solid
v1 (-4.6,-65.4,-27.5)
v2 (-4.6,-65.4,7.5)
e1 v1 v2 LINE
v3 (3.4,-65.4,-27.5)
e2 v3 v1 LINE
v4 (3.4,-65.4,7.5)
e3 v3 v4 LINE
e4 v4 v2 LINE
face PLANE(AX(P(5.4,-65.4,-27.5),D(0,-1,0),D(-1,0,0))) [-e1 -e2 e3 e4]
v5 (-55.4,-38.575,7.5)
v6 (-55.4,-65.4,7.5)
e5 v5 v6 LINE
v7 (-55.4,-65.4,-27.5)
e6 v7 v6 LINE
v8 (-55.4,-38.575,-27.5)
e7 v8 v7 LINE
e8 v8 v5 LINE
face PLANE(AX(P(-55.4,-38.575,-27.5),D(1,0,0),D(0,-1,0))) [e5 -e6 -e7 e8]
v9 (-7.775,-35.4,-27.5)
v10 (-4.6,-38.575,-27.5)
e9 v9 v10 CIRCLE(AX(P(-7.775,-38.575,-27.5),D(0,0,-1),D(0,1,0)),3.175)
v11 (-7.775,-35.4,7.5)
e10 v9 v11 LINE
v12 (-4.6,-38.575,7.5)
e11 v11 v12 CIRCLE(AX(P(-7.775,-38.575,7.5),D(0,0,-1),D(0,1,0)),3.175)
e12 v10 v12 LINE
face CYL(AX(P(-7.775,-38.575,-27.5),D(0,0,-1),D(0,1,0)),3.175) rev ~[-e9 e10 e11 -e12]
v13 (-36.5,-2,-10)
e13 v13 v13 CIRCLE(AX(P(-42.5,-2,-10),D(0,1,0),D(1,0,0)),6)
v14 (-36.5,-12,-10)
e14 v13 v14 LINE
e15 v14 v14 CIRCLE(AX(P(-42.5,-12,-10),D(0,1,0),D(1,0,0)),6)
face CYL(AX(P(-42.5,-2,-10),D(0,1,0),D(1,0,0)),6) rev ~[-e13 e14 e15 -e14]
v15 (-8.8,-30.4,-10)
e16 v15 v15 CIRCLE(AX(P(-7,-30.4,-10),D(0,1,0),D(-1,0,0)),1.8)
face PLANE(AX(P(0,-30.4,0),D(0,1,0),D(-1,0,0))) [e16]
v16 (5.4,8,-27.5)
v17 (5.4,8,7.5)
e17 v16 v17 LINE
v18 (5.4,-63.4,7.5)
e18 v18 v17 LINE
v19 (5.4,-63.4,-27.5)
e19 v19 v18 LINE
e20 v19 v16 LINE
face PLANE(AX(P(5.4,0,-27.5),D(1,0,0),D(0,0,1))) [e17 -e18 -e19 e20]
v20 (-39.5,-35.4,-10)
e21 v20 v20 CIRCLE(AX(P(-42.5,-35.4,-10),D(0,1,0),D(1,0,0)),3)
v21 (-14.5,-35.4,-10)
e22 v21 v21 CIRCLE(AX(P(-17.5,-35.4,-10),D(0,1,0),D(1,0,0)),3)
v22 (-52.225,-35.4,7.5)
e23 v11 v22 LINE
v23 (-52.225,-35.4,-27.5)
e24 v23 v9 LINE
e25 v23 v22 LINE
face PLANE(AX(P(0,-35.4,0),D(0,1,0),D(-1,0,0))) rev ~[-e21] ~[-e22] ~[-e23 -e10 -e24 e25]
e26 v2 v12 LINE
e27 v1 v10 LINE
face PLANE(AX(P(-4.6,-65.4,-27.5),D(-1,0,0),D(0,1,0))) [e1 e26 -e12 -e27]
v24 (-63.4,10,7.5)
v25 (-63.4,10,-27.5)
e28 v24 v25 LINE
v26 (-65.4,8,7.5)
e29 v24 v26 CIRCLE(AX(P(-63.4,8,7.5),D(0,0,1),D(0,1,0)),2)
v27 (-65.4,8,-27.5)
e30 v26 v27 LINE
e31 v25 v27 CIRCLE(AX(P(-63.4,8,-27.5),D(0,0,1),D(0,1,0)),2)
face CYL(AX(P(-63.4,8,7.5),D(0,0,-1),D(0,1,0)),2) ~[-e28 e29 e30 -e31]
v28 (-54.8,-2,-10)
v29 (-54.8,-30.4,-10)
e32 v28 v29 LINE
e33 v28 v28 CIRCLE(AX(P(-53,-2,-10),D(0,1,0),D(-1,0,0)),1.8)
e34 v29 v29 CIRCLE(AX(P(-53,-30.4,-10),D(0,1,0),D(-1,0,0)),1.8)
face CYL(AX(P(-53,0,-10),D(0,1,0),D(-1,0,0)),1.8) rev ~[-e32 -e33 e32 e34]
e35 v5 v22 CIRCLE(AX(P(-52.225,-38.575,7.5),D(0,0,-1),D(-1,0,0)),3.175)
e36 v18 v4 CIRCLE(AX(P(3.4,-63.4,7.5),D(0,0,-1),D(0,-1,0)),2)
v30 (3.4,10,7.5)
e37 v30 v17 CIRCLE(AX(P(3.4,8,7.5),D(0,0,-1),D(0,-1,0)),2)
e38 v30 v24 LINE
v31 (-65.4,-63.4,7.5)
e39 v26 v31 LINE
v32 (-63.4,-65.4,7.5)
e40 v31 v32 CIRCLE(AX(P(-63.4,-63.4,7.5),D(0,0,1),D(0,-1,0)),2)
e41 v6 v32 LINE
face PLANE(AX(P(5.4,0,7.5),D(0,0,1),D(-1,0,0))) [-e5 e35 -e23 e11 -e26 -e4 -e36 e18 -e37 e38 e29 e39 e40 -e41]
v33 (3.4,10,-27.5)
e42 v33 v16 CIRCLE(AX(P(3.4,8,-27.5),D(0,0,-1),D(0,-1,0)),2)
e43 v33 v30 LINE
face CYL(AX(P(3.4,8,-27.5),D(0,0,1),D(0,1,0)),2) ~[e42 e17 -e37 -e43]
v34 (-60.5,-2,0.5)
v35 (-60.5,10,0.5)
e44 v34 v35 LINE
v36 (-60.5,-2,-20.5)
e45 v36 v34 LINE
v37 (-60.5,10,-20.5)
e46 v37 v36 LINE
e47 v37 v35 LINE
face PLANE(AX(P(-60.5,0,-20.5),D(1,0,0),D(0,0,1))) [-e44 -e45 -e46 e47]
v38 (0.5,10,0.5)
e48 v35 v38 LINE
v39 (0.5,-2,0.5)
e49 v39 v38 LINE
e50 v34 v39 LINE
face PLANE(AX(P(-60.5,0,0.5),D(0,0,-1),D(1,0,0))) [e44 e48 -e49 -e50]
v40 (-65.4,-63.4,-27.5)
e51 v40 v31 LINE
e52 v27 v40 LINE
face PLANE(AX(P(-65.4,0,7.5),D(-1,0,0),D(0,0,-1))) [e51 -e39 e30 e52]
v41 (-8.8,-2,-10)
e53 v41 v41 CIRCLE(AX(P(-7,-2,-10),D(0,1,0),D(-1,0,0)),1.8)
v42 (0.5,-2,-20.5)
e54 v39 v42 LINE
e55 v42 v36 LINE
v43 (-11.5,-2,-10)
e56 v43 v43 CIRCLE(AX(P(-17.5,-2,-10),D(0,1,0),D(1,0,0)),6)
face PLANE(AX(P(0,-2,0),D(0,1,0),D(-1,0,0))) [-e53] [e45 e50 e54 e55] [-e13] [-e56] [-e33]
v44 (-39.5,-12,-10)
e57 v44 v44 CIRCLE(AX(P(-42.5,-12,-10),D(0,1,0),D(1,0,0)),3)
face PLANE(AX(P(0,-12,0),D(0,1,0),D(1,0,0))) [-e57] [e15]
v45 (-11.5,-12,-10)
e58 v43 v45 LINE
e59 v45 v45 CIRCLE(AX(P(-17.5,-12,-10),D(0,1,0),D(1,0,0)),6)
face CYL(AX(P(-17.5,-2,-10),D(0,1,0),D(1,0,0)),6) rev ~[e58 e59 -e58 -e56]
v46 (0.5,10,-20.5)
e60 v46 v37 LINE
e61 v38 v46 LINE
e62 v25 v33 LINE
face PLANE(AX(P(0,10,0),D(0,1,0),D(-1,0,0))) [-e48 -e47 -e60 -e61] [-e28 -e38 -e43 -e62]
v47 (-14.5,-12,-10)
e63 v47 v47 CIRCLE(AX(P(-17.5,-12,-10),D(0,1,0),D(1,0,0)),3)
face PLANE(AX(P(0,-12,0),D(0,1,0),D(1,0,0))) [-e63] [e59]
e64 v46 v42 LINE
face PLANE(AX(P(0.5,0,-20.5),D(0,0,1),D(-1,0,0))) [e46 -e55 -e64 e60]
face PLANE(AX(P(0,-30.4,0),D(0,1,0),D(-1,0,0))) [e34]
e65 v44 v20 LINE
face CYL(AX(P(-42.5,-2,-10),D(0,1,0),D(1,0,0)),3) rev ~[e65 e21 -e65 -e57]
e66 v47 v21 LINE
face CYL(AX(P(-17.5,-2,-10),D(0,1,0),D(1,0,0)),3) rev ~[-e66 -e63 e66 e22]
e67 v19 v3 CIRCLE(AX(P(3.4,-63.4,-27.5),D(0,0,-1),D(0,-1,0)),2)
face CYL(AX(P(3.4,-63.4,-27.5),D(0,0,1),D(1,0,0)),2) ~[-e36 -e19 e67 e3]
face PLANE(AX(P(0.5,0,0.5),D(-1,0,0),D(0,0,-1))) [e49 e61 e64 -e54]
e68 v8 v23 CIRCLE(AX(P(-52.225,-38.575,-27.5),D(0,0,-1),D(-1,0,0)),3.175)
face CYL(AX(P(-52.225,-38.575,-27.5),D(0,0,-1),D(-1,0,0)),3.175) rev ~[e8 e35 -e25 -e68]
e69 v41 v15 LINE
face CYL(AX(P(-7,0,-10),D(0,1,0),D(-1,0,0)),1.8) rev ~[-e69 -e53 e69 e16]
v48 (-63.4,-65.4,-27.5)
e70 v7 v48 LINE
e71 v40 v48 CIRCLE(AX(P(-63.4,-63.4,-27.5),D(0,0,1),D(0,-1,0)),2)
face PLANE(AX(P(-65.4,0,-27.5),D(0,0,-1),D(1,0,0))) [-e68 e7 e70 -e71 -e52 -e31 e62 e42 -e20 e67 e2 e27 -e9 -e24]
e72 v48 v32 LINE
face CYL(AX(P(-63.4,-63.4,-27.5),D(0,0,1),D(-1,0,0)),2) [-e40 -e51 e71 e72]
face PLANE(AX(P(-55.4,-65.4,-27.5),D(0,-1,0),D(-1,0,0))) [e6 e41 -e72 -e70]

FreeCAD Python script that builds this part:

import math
import FreeCAD as App
import Part
import Sketcher
from FreeCAD import Vector


def edges_at(feature, points):
    """Names of the edges that pass closest to the given points."""
    edges = feature.Shape.Edges
    near = lambda p: min(range(len(edges)), key=lambda i: edges[i].distToShape(Part.Vertex(*p))[0])
    return sorted({f"Edge{near(p) + 1}" for p in points})


def add_polygon(sketch, points):
    """Adds a closed chain of lines whose ends are joined by coincident constraints."""
    first, n = sketch.GeometryCount, len(points)
    for a, b in zip(points, points[1:] + points[:1]):
        sketch.addGeometry(Part.LineSegment(App.Vector(*a, 0), App.Vector(*b, 0)), False)
    for i in range(n):
        sketch.addConstraint(Sketcher.Constraint("Coincident", first + i, 2, first + (i + 1) % n, 1))

doc = App.newDocument("Part")
body = doc.addObject("PartDesign::Body", "Body")

sketch1 = body.newObject("Sketcher::SketchObject", "Sketch")
sketch1.AttachmentSupport = (doc.getObject("XZ_Plane"), [""])
sketch1.MapMode = "FlatFace"
add_polygon(sketch1, [(-65.4, 7.5), (5.4, 7.5), (5.4, -27.5), (-65.4, -27.5)])
sketch1.addConstraint([
    Sketcher.Constraint("Horizontal", 0),
    Sketcher.Constraint("Vertical", 1),
    Sketcher.Constraint("Horizontal", 2),
    Sketcher.Constraint("Vertical", 3),
    Sketcher.Constraint("DistanceY", 1, 2, 1, 1, 35.0),
    Sketcher.Constraint("DistanceX", 0, 1, 0, 2, 70.8),
    Sketcher.Constraint("DistanceX", -1, 1, 0, 2, 5.4),
    Sketcher.Constraint("DistanceY", -1, 1, 0, 2, 7.5),
])
pad1 = body.newObject("PartDesign::Pad", "Pad")
pad1.Profile = sketch1
pad1.Type = "TwoLengths"
pad1.Length = 10
pad1.Length2 = 35.4
pad1.Reversed = True

sketch2 = body.newObject("Sketcher::SketchObject", "Sketch001")
sketch2.AttachmentSupport = (doc.getObject("XZ_Plane"), [""])
sketch2.MapMode = "FlatFace"
add_polygon(sketch2, [(-60.5, -20.5), (-60.5, 0.5), (0.5, 0.5), (0.5, -20.5)])
sketch2.addGeometry(Part.Circle(Vector(-7, -10, 0), Vector(0, 0, 1), 1.8), False)
sketch2.addGeometry(Part.Circle(Vector(-53, -10, 0), Vector(0, 0, 1), 1.8), False)
sketch2.addConstraint([
    Sketcher.Constraint("Vertical", 0),
    Sketcher.Constraint("Horizontal", 1),
    Sketcher.Constraint("Vertical", 2),
    Sketcher.Constraint("Horizontal", 3),
    Sketcher.Constraint("Equal", 4, 5),
    Sketcher.Constraint("Horizontal", 4, 3, 5, 3),
    Sketcher.Constraint("Diameter", 4, 3.6),
    Sketcher.Constraint("DistanceX", 5, 3, 4, 3, 46.0),
    Sketcher.Constraint("DistanceY", -1, 1, 0, 2, 0.5),
    Sketcher.Constraint("DistanceX", -1, 1, 1, 2, 0.5),
    Sketcher.Constraint("DistanceX", 1, 1, 1, 2, 61.0),
    Sketcher.Constraint("DistanceY", 0, 1, 0, 2, 21.0),
    Sketcher.Constraint("DistanceX", 4, 3, -1, 1, 7.0),
    Sketcher.Constraint("DistanceY", 4, 3, -1, 1, 10.0),
])
pocket1 = body.newObject("PartDesign::Pocket", "Pocket")
pocket1.Profile = sketch2
pocket1.Type = "TwoLengths"
pocket1.Length = 10
pocket1.Length2 = 2

sketch3 = body.newObject("Sketcher::SketchObject", "Sketch002")
sketch3.AttachmentSupport = (doc.getObject("XZ_Plane"), [""])
sketch3.MapMode = "FlatFace"
sketch3.addGeometry([
    Part.Circle(Vector(-53, -10, 0), Vector(0, 0, 1), 1.8),
    Part.Circle(Vector(-7, -10, 0), Vector(0, 0, 1), 1.8),
], False)
sketch3.addConstraint([
    Sketcher.Constraint("Equal", 0, 1),
    Sketcher.Constraint("Horizontal", 0, 3, 1, 3),
    Sketcher.Constraint("Diameter", 0, 3.6),
    Sketcher.Constraint("DistanceX", 0, 3, 1, 3, 46.0),
    Sketcher.Constraint("DistanceX", 0, 3, -1, 1, 53.0),
    Sketcher.Constraint("DistanceY", 0, 3, -1, 1, 10.0),
])
pocket2 = body.newObject("PartDesign::Pocket", "Pocket001")
pocket2.Profile = sketch3
pocket2.Type = "TwoLengths"
pocket2.Length = 10
pocket2.Length2 = 30.4

sketch4 = body.newObject("Sketcher::SketchObject", "Sketch003")
sketch4.AttachmentSupport = (doc.getObject("XY_Plane"), [""])
sketch4.MapMode = "FlatFace"
sketch4.AttachmentOffset = App.Placement(Vector(0, 0, -27.5), App.Rotation())
sketch4.addGeometry([
    Part.LineSegment(Vector(-65.4, -65.4, 0), Vector(-65.4, -35.4, 0)),
    Part.LineSegment(Vector(-65.4, -35.4, 0), Vector(-52.225, -35.4, 0)),
    Part.ArcOfCircle(Part.Circle(Vector(-52.225, -38.575, 0), Vector(0, 0, 1), 3.175), math.radians(90), math.radians(180)),
    Part.LineSegment(Vector(-55.4, -38.575, 0), Vector(-55.4, -65.4, 0)),
    Part.LineSegment(Vector(-55.4, -65.4, 0), Vector(-65.4, -65.4, 0)),
    Part.ArcOfCircle(Part.Circle(Vector(-7.775, -38.575, 0), Vector(0, 0, 1), 3.175), math.radians(0), math.radians(90)),
    Part.LineSegment(Vector(-7.775, -35.4, 0), Vector(5.4, -35.4, 0)),
    Part.LineSegment(Vector(5.4, -35.4, 0), Vector(5.4, -65.4, 0)),
    Part.LineSegment(Vector(5.4, -65.4, 0), Vector(-4.6, -65.4, 0)),
    Part.LineSegment(Vector(-4.6, -65.4, 0), Vector(-4.6, -38.575, 0)),
], False)
sketch4.addConstraint([
    Sketcher.Constraint("Coincident", 0, 2, 1, 1),
    Sketcher.Constraint("Tangent", 1, 2, 2, 1),
    Sketcher.Constraint("Tangent", 2, 2, 3, 1),
    Sketcher.Constraint("Coincident", 3, 2, 4, 1),
    Sketcher.Constraint("Coincident", 4, 2, 0, 1),
    Sketcher.Constraint("Tangent", 5, 2, 6, 1),
    Sketcher.Constraint("Coincident", 6, 2, 7, 1),
    Sketcher.Constraint("Coincident", 7, 2, 8, 1),
    Sketcher.Constraint("Coincident", 8, 2, 9, 1),
    Sketcher.Constraint("Tangent", 9, 2, 5, 1),
    Sketcher.Constraint("Vertical", 0),
    Sketcher.Constraint("Horizontal", 1),
    Sketcher.Constraint("Vertical", 3),
    Sketcher.Constraint("Horizontal", 4),
    Sketcher.Constraint("Horizontal", 6),
    Sketcher.Constraint("Vertical", 7),
    Sketcher.Constraint("Horizontal", 8),
    Sketcher.Constraint("Vertical", 9),
    Sketcher.Constraint("Equal", 2, 5),
    Sketcher.Constraint("Horizontal", 2, 3, 5, 3),
    Sketcher.Constraint("Horizontal", 4, 2, 7, 2),
    Sketcher.Constraint("Equal", 1, 6),
    Sketcher.Constraint("DistanceX", 4, 2, 4, 1, 10.0),
    Sketcher.Constraint("DistanceY", 0, 1, 0, 2, 30.0),
    Sketcher.Constraint("Radius", 2, 3.175),
    Sketcher.Constraint("DistanceX", 3, 2, 8, 2, 50.8),
    Sketcher.Constraint("DistanceX", 0, 2, -1, 1, 65.4),
    Sketcher.Constraint("DistanceY", 0, 2, -1, 1, 35.4),
])
pad2 = body.newObject("PartDesign::Pad", "Pad001")
pad2.Profile = sketch4
pad2.Length = 35

sketch5 = body.newObject("Sketcher::SketchObject", "Sketch004")
sketch5.AttachmentSupport = (doc.getObject("XZ_Plane"), [""])
sketch5.MapMode = "FlatFace"
sketch5.AttachmentOffset = App.Placement(Vector(0, 0, 2), App.Rotation())
sketch5.addGeometry([
    Part.Circle(Vector(-42.5, -10, 0), Vector(0, 0, 1), 3),
    Part.Circle(Vector(-17.5, -10, 0), Vector(0, 0, 1), 3),
], False)
sketch5.addConstraint([
    Sketcher.Constraint("Equal", 0, 1),
    Sketcher.Constraint("Horizontal", 0, 3, 1, 3),
    Sketcher.Constraint("Diameter", 0, 6.0),
    Sketcher.Constraint("DistanceX", 0, 3, 1, 3, 25.0),
    Sketcher.Constraint("DistanceY", 0, 3, -1, 1, 10.0),
    Sketcher.Constraint("DistanceX", 0, 3, -1, 1, 42.5),
])
pocket3 = body.newObject("PartDesign::Pocket", "Pocket002")
pocket3.Profile = sketch5
pocket3.Length = 33.4
pocket3.Reversed = True

sketch6 = body.newObject("Sketcher::SketchObject", "Sketch005")
sketch6.AttachmentSupport = (doc.getObject("XZ_Plane"), [""])
sketch6.MapMode = "FlatFace"
sketch6.AttachmentOffset = App.Placement(Vector(0, 0, 2), App.Rotation())
sketch6.addGeometry([
    Part.Circle(Vector(-17.5, -10, 0), Vector(0, 0, 1), 6),
    Part.Circle(Vector(-42.5, -10, 0), Vector(0, 0, 1), 6),
], False)
sketch6.addConstraint([
    Sketcher.Constraint("Equal", 0, 1),
    Sketcher.Constraint("Horizontal", 0, 3, 1, 3),
    Sketcher.Constraint("Diameter", 0, 12.0),
    Sketcher.Constraint("DistanceY", 0, 3, -1, 1, 10.0),
    Sketcher.Constraint("DistanceX", 1, 3, 0, 3, 25.0),
    Sketcher.Constraint("DistanceX", 0, 3, -1, 1, 17.5),
])
pocket4 = body.newObject("PartDesign::Pocket", "Pocket003")
pocket4.Profile = sketch6
pocket4.Length = 10
pocket4.Reversed = True
doc.recompute()

fillet = body.newObject("PartDesign::Fillet", "Fillet")
fillet.Base = (pocket4, edges_at(pocket4, [(-65.4, 10, -10), (5.4, 10, -10)]))
fillet.Radius = 2
doc.recompute()

fillet2 = body.newObject("PartDesign::Fillet", "Fillet001")
fillet2.Base = (fillet, edges_at(fillet, [(-65.4, -65.4, -10), (5.4, -65.4, -10)]))
fillet2.Radius = 2

doc.recompute()
